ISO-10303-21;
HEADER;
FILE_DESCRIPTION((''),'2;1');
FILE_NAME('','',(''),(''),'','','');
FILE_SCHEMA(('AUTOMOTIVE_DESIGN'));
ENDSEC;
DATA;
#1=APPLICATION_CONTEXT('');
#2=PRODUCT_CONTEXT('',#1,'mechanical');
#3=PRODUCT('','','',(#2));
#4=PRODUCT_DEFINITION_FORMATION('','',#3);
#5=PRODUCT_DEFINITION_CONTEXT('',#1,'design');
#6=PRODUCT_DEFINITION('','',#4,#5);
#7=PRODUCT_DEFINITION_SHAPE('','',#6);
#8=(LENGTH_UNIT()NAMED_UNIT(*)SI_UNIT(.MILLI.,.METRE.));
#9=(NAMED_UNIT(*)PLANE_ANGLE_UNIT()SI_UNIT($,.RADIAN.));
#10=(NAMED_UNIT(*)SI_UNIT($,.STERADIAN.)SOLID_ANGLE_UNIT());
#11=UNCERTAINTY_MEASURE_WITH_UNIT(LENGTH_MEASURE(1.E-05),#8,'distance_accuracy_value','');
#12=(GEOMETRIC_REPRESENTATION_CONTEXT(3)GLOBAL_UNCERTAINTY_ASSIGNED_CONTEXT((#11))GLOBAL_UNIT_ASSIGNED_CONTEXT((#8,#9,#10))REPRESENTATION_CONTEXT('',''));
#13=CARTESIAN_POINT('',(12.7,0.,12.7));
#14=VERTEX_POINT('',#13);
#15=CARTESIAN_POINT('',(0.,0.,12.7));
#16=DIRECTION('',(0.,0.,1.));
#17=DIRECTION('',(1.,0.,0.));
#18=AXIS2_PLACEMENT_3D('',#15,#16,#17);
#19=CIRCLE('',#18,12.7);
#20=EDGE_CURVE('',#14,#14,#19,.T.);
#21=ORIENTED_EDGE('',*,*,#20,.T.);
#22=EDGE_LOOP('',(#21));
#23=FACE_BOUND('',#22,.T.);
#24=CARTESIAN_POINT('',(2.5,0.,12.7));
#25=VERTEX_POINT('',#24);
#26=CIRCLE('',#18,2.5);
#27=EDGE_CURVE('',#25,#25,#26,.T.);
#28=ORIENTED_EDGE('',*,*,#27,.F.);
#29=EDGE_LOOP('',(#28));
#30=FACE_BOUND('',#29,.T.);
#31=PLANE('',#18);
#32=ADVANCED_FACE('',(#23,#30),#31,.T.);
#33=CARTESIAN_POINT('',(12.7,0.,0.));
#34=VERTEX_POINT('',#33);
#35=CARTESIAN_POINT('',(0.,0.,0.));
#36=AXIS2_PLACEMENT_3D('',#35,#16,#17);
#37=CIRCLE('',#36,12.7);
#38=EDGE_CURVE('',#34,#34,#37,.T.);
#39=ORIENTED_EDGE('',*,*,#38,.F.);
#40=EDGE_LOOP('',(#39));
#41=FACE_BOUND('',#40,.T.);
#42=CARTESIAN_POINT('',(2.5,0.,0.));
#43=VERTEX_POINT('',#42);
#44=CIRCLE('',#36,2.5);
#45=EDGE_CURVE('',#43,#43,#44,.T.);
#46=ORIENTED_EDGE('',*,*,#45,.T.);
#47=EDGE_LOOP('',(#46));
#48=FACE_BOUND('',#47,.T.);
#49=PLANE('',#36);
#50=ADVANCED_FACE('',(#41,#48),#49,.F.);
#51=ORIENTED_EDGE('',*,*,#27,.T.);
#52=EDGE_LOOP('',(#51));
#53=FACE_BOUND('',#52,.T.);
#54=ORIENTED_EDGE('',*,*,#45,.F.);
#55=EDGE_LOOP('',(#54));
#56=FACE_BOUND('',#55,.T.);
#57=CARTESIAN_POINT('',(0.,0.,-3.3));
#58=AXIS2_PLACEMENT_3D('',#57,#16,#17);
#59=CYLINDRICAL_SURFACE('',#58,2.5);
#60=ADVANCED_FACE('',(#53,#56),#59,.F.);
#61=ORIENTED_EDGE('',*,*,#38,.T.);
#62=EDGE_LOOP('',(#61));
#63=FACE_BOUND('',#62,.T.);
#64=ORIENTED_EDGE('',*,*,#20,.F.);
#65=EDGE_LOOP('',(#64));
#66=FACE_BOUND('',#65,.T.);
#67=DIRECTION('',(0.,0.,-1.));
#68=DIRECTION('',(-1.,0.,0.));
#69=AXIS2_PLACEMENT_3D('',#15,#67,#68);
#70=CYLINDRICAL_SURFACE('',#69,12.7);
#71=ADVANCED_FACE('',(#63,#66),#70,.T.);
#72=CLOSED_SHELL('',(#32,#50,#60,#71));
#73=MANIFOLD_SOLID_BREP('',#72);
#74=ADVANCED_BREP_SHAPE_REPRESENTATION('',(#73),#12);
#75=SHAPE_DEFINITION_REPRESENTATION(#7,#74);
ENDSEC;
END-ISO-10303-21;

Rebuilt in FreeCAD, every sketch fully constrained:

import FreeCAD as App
import Part
import Sketcher
from FreeCAD import Vector
Q = App.Units.Quantity

doc = App.newDocument("Part")
body = doc.addObject("PartDesign::Body", "Body")

# Sketch on XY plane
sketch1 = body.newObject("Sketcher::SketchObject", "Sketch")
sketch1.AttachmentSupport = (doc.getObject("XY_Plane"), [""])
sketch1.MapMode = "FlatFace"
sketch1.addGeometry(Part.Circle(Vector(0, 0, 0), Vector(0, 0, 1), 13), False)
sketch1.addConstraint([
    Sketcher.Constraint("Coincident", 0, 3, -1, 1),
    Sketcher.Constraint("Diameter", 0, Q("25.4 mm")),
])
pad1 = body.newObject("PartDesign::Pad", "Pad")
pad1.Profile = sketch1
pad1.Length = 12.7

# Sketch on XY plane
sketch2 = body.newObject("Sketcher::SketchObject", "Sketch001")
sketch2.AttachmentSupport = (doc.getObject("XY_Plane"), [""])
sketch2.MapMode = "FlatFace"
sketch2.AttachmentOffset = App.Placement(Vector(0, 0, 12.7), App.Rotation())
sketch2.addGeometry(Part.Circle(Vector(0, 0, 0), Vector(0, 0, 1), 2.5), False)
sketch2.addConstraint([
    Sketcher.Constraint("Coincident", 0, 3, -1, 1),
    Sketcher.Constraint("Diameter", 0, Q("5 mm")),
])
pocket1 = body.newObject("PartDesign::Pocket", "Pocket")
pocket1.Profile = sketch2
pocket1.Length = 16

doc.recompute()
